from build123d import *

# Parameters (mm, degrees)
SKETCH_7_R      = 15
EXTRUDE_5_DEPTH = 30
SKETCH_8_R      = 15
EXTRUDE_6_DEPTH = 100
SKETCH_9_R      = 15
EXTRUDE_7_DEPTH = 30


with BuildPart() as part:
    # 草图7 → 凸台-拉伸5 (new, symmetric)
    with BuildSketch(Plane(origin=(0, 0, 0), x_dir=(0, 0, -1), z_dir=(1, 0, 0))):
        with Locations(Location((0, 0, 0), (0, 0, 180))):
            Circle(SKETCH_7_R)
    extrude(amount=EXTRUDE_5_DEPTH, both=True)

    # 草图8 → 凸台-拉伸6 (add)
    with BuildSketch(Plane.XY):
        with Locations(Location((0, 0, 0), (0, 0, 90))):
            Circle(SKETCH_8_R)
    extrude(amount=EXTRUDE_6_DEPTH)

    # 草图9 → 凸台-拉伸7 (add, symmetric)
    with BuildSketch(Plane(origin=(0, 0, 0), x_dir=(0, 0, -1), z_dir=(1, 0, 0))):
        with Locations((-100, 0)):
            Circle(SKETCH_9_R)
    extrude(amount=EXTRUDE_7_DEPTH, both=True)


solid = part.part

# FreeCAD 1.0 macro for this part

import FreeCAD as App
import Part
import Sketcher

V = App.Vector
Q = App.Units.Quantity

doc = App.newDocument("Part")
params = doc.addObject("Spreadsheet::Sheet", "Params")
for row, (alias, value) in enumerate([
    ("sketch1_diameter", "30 mm"),
    ("pad1_length", "60 mm"),
    ("sketch2_diameter", "30 mm"),
    ("pad2_length", "100 mm"),
    ("sketch3_diameter", "30 mm"),
    ("pad3_length", "60 mm"),
], start=1):
    params.set(f"A{row}", alias)
    params.set(f"B{row}", "=" + value)
    params.setAlias(f"B{row}", alias)

body = doc.addObject("PartDesign::Body", "Body")

# Sketch on YZ plane
sketch1 = body.newObject("Sketcher::SketchObject", "Sketch")
sketch1.AttachmentSupport = (doc.getObject("YZ_Plane"), [""])
sketch1.MapMode = "FlatFace"
sketch1.addGeometry(Part.Circle(V(0, 0, 0), V(0, 0, 1), 15), False)
sketch1.addConstraint([
    Sketcher.Constraint("Coincident", 0, 3, -1, 1),
    Sketcher.Constraint("Diameter", 0, Q("30 mm")),
])
sketch1.setExpression("Constraints[1]", "Params.sketch1_diameter")
pad1 = body.newObject("PartDesign::Pad", "Pad")
pad1.Profile = sketch1
pad1.setExpression("Length", "Params.pad1_length")
pad1.Midplane = True

# Sketch on XY plane
sketch2 = body.newObject("Sketcher::SketchObject", "Sketch001")
sketch2.AttachmentSupport = (doc.getObject("XY_Plane"), [""])
sketch2.MapMode = "FlatFace"
sketch2.addGeometry(Part.Circle(V(0, 0, 0), V(0, 0, 1), 15), False)
sketch2.addConstraint([
    Sketcher.Constraint("Coincident", 0, 3, -1, 1),
    Sketcher.Constraint("Diameter", 0, Q("30 mm")),
])
sketch2.setExpression("Constraints[1]", "Params.sketch2_diameter")
pad2 = body.newObject("PartDesign::Pad", "Pad001")
pad2.Profile = sketch2
pad2.setExpression("Length", "Params.pad2_length")

# Sketch on YZ plane
sketch3 = body.newObject("Sketcher::SketchObject", "Sketch002")
sketch3.AttachmentSupport = (doc.getObject("YZ_Plane"), [""])
sketch3.MapMode = "FlatFace"
sketch3.addGeometry(Part.Circle(V(0, 100, 0), V(0, 0, 1), 15), False)
sketch3.addConstraint([
    Sketcher.Constraint("PointOnObject", 0, 3, -2),
    Sketcher.Constraint("Diameter", 0, Q("30 mm")),
    Sketcher.Constraint("DistanceY", -1, 1, 0, 3, Q("100 mm")),
])
sketch3.setExpression("Constraints[1]", "Params.sketch3_diameter")
pad3 = body.newObject("PartDesign::Pad", "Pad002")
pad3.Profile = sketch3
pad3.setExpression("Length", "Params.pad3_length")
pad3.Midplane = True

doc.recompute()
